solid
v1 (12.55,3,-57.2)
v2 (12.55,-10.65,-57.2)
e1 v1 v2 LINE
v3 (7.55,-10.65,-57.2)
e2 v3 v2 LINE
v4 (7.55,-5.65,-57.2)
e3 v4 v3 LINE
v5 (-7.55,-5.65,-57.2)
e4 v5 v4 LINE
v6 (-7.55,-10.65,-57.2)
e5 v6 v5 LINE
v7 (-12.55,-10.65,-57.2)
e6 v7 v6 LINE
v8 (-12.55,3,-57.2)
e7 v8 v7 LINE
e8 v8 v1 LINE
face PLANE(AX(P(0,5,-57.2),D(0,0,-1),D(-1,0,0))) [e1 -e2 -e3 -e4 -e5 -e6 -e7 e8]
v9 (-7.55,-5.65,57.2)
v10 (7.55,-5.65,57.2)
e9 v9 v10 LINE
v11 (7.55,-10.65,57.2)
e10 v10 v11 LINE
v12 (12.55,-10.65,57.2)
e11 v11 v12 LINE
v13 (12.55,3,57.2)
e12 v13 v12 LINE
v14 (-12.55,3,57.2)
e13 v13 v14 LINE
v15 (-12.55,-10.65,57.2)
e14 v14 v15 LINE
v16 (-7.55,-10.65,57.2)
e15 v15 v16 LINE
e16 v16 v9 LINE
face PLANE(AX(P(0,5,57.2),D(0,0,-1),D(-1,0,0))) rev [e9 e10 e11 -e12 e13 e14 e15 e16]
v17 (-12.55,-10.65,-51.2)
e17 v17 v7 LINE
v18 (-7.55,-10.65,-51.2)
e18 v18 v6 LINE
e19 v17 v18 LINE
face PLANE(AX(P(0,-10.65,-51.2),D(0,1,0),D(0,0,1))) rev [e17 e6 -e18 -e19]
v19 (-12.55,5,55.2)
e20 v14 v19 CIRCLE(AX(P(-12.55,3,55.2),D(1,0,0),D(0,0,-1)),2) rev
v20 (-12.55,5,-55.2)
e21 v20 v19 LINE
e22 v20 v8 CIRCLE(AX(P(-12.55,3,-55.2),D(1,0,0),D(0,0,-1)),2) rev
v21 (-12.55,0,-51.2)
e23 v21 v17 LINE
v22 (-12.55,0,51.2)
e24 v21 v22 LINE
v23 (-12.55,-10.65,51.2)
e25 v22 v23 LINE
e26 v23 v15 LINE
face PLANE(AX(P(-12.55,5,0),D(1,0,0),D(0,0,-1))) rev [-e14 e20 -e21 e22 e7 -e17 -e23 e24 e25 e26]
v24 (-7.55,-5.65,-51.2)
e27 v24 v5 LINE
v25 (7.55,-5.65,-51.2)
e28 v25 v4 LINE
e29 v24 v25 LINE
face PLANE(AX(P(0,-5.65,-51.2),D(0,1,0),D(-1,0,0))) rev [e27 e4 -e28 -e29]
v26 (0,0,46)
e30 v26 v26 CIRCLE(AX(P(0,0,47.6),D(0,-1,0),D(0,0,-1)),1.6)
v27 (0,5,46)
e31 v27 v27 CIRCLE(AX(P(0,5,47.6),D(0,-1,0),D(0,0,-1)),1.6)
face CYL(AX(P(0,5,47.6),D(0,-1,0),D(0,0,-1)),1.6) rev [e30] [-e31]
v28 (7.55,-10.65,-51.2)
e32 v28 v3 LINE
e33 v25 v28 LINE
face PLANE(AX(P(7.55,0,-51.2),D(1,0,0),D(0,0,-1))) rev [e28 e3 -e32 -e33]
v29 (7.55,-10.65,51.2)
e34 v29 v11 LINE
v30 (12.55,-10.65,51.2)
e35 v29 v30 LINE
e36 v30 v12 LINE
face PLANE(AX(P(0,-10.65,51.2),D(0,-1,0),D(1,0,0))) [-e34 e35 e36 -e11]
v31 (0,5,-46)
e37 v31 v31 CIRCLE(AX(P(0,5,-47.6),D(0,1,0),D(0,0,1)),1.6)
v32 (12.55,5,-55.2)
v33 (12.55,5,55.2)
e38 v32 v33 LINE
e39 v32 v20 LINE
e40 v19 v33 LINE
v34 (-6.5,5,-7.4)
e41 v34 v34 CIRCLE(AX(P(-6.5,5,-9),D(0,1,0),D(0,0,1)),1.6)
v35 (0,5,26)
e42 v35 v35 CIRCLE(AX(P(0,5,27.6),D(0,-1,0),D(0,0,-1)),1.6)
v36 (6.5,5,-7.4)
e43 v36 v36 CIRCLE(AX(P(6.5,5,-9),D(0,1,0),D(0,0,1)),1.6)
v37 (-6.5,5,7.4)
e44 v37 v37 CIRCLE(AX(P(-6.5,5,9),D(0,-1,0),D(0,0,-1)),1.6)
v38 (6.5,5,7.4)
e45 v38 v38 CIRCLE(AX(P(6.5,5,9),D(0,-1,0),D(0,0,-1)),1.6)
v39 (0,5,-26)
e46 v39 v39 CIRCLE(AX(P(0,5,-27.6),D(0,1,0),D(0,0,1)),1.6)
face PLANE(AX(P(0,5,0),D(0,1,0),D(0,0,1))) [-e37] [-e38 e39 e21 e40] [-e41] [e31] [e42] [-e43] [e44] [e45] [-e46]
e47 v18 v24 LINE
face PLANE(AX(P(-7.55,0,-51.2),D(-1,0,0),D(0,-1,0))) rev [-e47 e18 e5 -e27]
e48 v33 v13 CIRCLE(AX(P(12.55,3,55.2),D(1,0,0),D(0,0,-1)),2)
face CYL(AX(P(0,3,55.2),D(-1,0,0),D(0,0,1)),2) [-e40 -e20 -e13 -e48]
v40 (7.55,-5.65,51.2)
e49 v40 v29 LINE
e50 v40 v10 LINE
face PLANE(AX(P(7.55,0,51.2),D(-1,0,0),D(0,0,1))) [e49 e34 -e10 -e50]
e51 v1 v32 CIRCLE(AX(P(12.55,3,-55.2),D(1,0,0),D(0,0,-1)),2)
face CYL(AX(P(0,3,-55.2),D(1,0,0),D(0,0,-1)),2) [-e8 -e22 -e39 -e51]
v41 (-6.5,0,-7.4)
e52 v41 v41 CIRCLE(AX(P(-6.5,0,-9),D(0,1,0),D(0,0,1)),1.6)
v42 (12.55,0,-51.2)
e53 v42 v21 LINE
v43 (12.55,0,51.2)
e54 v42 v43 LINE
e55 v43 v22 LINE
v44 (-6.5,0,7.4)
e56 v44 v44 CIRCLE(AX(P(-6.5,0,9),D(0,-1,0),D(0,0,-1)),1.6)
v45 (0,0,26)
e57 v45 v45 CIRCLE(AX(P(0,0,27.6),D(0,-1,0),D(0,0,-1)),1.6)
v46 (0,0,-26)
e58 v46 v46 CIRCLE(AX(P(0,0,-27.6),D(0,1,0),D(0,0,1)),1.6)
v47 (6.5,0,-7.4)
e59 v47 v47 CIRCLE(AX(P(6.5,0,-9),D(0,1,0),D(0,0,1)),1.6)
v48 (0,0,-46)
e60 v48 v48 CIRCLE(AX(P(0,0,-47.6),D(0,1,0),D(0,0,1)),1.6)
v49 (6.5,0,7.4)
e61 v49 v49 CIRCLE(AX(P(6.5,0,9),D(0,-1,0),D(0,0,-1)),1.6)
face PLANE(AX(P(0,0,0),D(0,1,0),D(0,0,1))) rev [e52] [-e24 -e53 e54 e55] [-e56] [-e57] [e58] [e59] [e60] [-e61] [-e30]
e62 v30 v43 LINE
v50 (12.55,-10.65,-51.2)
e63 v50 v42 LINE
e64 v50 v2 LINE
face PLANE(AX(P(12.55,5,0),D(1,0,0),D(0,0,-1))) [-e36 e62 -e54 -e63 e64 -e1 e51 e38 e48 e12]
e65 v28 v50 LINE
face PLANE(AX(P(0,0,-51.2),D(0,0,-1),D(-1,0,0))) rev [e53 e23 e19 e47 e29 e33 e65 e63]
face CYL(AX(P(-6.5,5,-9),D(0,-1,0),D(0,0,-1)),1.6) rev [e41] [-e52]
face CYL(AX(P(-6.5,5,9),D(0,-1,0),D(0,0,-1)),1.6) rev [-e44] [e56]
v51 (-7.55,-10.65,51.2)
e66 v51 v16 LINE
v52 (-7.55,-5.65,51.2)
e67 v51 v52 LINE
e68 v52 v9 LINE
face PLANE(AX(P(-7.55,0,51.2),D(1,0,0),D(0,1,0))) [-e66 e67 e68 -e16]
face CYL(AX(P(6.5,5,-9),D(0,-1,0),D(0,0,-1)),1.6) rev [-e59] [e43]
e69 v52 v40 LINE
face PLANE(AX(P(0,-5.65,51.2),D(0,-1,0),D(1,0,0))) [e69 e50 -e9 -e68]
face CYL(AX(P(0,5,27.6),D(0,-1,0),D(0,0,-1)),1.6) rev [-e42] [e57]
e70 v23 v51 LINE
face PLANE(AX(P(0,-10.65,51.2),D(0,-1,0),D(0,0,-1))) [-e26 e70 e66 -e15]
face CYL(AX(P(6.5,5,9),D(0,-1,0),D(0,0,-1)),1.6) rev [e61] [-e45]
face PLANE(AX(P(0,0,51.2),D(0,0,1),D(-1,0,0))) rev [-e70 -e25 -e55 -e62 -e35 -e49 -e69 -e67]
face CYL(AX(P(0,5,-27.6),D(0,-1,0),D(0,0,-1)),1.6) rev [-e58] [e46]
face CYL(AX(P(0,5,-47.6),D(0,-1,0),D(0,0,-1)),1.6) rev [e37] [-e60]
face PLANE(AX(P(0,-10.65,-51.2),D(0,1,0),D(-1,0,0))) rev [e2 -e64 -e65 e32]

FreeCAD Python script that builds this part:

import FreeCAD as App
import Part
import Sketcher

V = App.Vector


def edges_at(feature, points):
    """Names of the edges that pass closest to the given points."""
    edges = feature.Shape.Edges
    near = lambda p: min(range(len(edges)), key=lambda i: edges[i].distToShape(Part.Vertex(*p))[0])
    return sorted({f"Edge{near(p) + 1}" for p in points})


def add_polygon(sketch, points):
    """Adds a closed chain of lines whose ends are joined by coincident constraints."""
    first, n = sketch.GeometryCount, len(points)
    for a, b in zip(points, points[1:] + points[:1]):
        sketch.addGeometry(Part.LineSegment(App.Vector(*a, 0), App.Vector(*b, 0)), False)
    for i in range(n):
        sketch.addConstraint(Sketcher.Constraint("Coincident", first + i, 2, first + (i + 1) % n, 1))

doc = App.newDocument("Part")
body = doc.addObject("PartDesign::Body", "Body")

# Sketch on XZ plane
sketch1 = doc.addObject("Sketcher::SketchObject", "Sketch")
body.addObject(sketch1)
sketch1.AttachmentSupport = (doc.XZ_Plane, [""])
sketch1.MapMode = "FlatFace"
add_polygon(sketch1, [(-12.55, -57.2), (-12.55, 0), (12.55, 0), (12.55, -57.2)])  # lines 0-3
sketch1.addGeometry(Part.Circle(V(-6.5, -9, 0), V(0, 0, 1), 1.6), False)  # 4
sketch1.addGeometry(Part.Circle(V(6.5, -9, 0), V(0, 0, 1), 1.6), False)  # 5
sketch1.addGeometry(Part.Circle(V(0, -27.6, 0), V(0, 0, 1), 1.6), False)  # 6
sketch1.addGeometry(Part.Circle(V(0, -47.6, 0), V(0, 0, 1), 1.6), False)  # 7
sketch1.addConstraint(Sketcher.Constraint("Vertical", 0))
sketch1.addConstraint(Sketcher.Constraint("Horizontal", 1))
sketch1.addConstraint(Sketcher.Constraint("Vertical", 2))
sketch1.addConstraint(Sketcher.Constraint("Horizontal", 3))
sketch1.addConstraint(Sketcher.Constraint("Equal", 4, 5))
sketch1.addConstraint(Sketcher.Constraint("Equal", 5, 6))
sketch1.addConstraint(Sketcher.Constraint("Equal", 6, 7))
sketch1.addConstraint(Sketcher.Constraint("Symmetric", 0, 2, 1, 2, -1, 1))
sketch1.addConstraint(Sketcher.Constraint("Symmetric", 4, 3, 5, 3, -2))
sketch1.addConstraint(Sketcher.Constraint("PointOnObject", 6, 3, -2))
sketch1.addConstraint(Sketcher.Constraint("PointOnObject", 7, 3, -2))
sketch1.addConstraint(Sketcher.Constraint("Diameter", 4, 3.2))
sketch1.addConstraint(Sketcher.Constraint("DistanceX", 1, 1, 1, 2, 25.1))
sketch1.addConstraint(Sketcher.Constraint("DistanceY", 0, 1, 0, 2, 57.2))
sketch1.addConstraint(Sketcher.Constraint("DistanceY", 4, 3, -1, 1, 9.0))
sketch1.addConstraint(Sketcher.Constraint("DistanceX", 4, 3, 5, 3, 13.0))
sketch1.addConstraint(Sketcher.Constraint("DistanceY", 7, 3, 6, 3, 20.0))
sketch1.addConstraint(Sketcher.Constraint("DistanceY", 6, 3, -1, 1, 27.6))
pad1 = doc.addObject("PartDesign::Pad", "Pad")
body.addObject(pad1)
pad1.Profile = sketch1
pad1.Length = 5
pad1.Reversed = True

# Sketch on XY plane
sketch2 = doc.addObject("Sketcher::SketchObject", "Sketch001")
body.addObject(sketch2)
sketch2.AttachmentSupport = (doc.XY_Plane, [""])
sketch2.MapMode = "FlatFace"
sketch2.AttachmentOffset = App.Placement(V(0, 0, -57.2), App.Rotation())
add_polygon(sketch2, [(-12.55, 0), (12.55, 0), (12.55, -10.65), (7.55, -10.65), (7.55, -5.65), (-7.55, -5.65), (-7.55, -10.65), (-12.55, -10.65)])  # lines 0-7
sketch2.addConstraint(Sketcher.Constraint("Horizontal", 0))
sketch2.addConstraint(Sketcher.Constraint("Vertical", 1))
sketch2.addConstraint(Sketcher.Constraint("Horizontal", 2))
sketch2.addConstraint(Sketcher.Constraint("Vertical", 3))
sketch2.addConstraint(Sketcher.Constraint("Horizontal", 4))
sketch2.addConstraint(Sketcher.Constraint("Vertical", 5))
sketch2.addConstraint(Sketcher.Constraint("Horizontal", 6))
sketch2.addConstraint(Sketcher.Constraint("Vertical", 7))
sketch2.addConstraint(Sketcher.Constraint("Symmetric", 0, 2, 7, 2, -1, 1))
sketch2.addConstraint(Sketcher.Constraint("Symmetric", 2, 2, 5, 2, -2))
sketch2.addConstraint(Sketcher.Constraint("Equal", 6, 3))
sketch2.addConstraint(Sketcher.Constraint("DistanceX", 2, 2, 2, 1, 5.0))
sketch2.addConstraint(Sketcher.Constraint("DistanceX", 0, 1, 0, 2, 25.1))
sketch2.addConstraint(Sketcher.Constraint("DistanceY", 1, 2, 1, 1, 10.65))
pad2 = doc.addObject("PartDesign::Pad", "Pad001")
body.addObject(pad2)
pad2.Profile = sketch2
pad2.Length = 6
doc.recompute()

mirrored = doc.addObject("PartDesign::Mirrored", "Mirrored")
body.addObject(mirrored)
mirrored.Originals = [pad1, pad2]
mirrored.MirrorPlane = (doc.XY_Plane, [""])
body.Tip = mirrored
doc.recompute()

fillet = doc.addObject("PartDesign::Fillet", "Fillet")
body.addObject(fillet)
fillet.Base = (mirrored, edges_at(mirrored, [(0, 5, -57.2), (0, 5, 57.2)]))
fillet.Radius = 2

doc.recompute()
